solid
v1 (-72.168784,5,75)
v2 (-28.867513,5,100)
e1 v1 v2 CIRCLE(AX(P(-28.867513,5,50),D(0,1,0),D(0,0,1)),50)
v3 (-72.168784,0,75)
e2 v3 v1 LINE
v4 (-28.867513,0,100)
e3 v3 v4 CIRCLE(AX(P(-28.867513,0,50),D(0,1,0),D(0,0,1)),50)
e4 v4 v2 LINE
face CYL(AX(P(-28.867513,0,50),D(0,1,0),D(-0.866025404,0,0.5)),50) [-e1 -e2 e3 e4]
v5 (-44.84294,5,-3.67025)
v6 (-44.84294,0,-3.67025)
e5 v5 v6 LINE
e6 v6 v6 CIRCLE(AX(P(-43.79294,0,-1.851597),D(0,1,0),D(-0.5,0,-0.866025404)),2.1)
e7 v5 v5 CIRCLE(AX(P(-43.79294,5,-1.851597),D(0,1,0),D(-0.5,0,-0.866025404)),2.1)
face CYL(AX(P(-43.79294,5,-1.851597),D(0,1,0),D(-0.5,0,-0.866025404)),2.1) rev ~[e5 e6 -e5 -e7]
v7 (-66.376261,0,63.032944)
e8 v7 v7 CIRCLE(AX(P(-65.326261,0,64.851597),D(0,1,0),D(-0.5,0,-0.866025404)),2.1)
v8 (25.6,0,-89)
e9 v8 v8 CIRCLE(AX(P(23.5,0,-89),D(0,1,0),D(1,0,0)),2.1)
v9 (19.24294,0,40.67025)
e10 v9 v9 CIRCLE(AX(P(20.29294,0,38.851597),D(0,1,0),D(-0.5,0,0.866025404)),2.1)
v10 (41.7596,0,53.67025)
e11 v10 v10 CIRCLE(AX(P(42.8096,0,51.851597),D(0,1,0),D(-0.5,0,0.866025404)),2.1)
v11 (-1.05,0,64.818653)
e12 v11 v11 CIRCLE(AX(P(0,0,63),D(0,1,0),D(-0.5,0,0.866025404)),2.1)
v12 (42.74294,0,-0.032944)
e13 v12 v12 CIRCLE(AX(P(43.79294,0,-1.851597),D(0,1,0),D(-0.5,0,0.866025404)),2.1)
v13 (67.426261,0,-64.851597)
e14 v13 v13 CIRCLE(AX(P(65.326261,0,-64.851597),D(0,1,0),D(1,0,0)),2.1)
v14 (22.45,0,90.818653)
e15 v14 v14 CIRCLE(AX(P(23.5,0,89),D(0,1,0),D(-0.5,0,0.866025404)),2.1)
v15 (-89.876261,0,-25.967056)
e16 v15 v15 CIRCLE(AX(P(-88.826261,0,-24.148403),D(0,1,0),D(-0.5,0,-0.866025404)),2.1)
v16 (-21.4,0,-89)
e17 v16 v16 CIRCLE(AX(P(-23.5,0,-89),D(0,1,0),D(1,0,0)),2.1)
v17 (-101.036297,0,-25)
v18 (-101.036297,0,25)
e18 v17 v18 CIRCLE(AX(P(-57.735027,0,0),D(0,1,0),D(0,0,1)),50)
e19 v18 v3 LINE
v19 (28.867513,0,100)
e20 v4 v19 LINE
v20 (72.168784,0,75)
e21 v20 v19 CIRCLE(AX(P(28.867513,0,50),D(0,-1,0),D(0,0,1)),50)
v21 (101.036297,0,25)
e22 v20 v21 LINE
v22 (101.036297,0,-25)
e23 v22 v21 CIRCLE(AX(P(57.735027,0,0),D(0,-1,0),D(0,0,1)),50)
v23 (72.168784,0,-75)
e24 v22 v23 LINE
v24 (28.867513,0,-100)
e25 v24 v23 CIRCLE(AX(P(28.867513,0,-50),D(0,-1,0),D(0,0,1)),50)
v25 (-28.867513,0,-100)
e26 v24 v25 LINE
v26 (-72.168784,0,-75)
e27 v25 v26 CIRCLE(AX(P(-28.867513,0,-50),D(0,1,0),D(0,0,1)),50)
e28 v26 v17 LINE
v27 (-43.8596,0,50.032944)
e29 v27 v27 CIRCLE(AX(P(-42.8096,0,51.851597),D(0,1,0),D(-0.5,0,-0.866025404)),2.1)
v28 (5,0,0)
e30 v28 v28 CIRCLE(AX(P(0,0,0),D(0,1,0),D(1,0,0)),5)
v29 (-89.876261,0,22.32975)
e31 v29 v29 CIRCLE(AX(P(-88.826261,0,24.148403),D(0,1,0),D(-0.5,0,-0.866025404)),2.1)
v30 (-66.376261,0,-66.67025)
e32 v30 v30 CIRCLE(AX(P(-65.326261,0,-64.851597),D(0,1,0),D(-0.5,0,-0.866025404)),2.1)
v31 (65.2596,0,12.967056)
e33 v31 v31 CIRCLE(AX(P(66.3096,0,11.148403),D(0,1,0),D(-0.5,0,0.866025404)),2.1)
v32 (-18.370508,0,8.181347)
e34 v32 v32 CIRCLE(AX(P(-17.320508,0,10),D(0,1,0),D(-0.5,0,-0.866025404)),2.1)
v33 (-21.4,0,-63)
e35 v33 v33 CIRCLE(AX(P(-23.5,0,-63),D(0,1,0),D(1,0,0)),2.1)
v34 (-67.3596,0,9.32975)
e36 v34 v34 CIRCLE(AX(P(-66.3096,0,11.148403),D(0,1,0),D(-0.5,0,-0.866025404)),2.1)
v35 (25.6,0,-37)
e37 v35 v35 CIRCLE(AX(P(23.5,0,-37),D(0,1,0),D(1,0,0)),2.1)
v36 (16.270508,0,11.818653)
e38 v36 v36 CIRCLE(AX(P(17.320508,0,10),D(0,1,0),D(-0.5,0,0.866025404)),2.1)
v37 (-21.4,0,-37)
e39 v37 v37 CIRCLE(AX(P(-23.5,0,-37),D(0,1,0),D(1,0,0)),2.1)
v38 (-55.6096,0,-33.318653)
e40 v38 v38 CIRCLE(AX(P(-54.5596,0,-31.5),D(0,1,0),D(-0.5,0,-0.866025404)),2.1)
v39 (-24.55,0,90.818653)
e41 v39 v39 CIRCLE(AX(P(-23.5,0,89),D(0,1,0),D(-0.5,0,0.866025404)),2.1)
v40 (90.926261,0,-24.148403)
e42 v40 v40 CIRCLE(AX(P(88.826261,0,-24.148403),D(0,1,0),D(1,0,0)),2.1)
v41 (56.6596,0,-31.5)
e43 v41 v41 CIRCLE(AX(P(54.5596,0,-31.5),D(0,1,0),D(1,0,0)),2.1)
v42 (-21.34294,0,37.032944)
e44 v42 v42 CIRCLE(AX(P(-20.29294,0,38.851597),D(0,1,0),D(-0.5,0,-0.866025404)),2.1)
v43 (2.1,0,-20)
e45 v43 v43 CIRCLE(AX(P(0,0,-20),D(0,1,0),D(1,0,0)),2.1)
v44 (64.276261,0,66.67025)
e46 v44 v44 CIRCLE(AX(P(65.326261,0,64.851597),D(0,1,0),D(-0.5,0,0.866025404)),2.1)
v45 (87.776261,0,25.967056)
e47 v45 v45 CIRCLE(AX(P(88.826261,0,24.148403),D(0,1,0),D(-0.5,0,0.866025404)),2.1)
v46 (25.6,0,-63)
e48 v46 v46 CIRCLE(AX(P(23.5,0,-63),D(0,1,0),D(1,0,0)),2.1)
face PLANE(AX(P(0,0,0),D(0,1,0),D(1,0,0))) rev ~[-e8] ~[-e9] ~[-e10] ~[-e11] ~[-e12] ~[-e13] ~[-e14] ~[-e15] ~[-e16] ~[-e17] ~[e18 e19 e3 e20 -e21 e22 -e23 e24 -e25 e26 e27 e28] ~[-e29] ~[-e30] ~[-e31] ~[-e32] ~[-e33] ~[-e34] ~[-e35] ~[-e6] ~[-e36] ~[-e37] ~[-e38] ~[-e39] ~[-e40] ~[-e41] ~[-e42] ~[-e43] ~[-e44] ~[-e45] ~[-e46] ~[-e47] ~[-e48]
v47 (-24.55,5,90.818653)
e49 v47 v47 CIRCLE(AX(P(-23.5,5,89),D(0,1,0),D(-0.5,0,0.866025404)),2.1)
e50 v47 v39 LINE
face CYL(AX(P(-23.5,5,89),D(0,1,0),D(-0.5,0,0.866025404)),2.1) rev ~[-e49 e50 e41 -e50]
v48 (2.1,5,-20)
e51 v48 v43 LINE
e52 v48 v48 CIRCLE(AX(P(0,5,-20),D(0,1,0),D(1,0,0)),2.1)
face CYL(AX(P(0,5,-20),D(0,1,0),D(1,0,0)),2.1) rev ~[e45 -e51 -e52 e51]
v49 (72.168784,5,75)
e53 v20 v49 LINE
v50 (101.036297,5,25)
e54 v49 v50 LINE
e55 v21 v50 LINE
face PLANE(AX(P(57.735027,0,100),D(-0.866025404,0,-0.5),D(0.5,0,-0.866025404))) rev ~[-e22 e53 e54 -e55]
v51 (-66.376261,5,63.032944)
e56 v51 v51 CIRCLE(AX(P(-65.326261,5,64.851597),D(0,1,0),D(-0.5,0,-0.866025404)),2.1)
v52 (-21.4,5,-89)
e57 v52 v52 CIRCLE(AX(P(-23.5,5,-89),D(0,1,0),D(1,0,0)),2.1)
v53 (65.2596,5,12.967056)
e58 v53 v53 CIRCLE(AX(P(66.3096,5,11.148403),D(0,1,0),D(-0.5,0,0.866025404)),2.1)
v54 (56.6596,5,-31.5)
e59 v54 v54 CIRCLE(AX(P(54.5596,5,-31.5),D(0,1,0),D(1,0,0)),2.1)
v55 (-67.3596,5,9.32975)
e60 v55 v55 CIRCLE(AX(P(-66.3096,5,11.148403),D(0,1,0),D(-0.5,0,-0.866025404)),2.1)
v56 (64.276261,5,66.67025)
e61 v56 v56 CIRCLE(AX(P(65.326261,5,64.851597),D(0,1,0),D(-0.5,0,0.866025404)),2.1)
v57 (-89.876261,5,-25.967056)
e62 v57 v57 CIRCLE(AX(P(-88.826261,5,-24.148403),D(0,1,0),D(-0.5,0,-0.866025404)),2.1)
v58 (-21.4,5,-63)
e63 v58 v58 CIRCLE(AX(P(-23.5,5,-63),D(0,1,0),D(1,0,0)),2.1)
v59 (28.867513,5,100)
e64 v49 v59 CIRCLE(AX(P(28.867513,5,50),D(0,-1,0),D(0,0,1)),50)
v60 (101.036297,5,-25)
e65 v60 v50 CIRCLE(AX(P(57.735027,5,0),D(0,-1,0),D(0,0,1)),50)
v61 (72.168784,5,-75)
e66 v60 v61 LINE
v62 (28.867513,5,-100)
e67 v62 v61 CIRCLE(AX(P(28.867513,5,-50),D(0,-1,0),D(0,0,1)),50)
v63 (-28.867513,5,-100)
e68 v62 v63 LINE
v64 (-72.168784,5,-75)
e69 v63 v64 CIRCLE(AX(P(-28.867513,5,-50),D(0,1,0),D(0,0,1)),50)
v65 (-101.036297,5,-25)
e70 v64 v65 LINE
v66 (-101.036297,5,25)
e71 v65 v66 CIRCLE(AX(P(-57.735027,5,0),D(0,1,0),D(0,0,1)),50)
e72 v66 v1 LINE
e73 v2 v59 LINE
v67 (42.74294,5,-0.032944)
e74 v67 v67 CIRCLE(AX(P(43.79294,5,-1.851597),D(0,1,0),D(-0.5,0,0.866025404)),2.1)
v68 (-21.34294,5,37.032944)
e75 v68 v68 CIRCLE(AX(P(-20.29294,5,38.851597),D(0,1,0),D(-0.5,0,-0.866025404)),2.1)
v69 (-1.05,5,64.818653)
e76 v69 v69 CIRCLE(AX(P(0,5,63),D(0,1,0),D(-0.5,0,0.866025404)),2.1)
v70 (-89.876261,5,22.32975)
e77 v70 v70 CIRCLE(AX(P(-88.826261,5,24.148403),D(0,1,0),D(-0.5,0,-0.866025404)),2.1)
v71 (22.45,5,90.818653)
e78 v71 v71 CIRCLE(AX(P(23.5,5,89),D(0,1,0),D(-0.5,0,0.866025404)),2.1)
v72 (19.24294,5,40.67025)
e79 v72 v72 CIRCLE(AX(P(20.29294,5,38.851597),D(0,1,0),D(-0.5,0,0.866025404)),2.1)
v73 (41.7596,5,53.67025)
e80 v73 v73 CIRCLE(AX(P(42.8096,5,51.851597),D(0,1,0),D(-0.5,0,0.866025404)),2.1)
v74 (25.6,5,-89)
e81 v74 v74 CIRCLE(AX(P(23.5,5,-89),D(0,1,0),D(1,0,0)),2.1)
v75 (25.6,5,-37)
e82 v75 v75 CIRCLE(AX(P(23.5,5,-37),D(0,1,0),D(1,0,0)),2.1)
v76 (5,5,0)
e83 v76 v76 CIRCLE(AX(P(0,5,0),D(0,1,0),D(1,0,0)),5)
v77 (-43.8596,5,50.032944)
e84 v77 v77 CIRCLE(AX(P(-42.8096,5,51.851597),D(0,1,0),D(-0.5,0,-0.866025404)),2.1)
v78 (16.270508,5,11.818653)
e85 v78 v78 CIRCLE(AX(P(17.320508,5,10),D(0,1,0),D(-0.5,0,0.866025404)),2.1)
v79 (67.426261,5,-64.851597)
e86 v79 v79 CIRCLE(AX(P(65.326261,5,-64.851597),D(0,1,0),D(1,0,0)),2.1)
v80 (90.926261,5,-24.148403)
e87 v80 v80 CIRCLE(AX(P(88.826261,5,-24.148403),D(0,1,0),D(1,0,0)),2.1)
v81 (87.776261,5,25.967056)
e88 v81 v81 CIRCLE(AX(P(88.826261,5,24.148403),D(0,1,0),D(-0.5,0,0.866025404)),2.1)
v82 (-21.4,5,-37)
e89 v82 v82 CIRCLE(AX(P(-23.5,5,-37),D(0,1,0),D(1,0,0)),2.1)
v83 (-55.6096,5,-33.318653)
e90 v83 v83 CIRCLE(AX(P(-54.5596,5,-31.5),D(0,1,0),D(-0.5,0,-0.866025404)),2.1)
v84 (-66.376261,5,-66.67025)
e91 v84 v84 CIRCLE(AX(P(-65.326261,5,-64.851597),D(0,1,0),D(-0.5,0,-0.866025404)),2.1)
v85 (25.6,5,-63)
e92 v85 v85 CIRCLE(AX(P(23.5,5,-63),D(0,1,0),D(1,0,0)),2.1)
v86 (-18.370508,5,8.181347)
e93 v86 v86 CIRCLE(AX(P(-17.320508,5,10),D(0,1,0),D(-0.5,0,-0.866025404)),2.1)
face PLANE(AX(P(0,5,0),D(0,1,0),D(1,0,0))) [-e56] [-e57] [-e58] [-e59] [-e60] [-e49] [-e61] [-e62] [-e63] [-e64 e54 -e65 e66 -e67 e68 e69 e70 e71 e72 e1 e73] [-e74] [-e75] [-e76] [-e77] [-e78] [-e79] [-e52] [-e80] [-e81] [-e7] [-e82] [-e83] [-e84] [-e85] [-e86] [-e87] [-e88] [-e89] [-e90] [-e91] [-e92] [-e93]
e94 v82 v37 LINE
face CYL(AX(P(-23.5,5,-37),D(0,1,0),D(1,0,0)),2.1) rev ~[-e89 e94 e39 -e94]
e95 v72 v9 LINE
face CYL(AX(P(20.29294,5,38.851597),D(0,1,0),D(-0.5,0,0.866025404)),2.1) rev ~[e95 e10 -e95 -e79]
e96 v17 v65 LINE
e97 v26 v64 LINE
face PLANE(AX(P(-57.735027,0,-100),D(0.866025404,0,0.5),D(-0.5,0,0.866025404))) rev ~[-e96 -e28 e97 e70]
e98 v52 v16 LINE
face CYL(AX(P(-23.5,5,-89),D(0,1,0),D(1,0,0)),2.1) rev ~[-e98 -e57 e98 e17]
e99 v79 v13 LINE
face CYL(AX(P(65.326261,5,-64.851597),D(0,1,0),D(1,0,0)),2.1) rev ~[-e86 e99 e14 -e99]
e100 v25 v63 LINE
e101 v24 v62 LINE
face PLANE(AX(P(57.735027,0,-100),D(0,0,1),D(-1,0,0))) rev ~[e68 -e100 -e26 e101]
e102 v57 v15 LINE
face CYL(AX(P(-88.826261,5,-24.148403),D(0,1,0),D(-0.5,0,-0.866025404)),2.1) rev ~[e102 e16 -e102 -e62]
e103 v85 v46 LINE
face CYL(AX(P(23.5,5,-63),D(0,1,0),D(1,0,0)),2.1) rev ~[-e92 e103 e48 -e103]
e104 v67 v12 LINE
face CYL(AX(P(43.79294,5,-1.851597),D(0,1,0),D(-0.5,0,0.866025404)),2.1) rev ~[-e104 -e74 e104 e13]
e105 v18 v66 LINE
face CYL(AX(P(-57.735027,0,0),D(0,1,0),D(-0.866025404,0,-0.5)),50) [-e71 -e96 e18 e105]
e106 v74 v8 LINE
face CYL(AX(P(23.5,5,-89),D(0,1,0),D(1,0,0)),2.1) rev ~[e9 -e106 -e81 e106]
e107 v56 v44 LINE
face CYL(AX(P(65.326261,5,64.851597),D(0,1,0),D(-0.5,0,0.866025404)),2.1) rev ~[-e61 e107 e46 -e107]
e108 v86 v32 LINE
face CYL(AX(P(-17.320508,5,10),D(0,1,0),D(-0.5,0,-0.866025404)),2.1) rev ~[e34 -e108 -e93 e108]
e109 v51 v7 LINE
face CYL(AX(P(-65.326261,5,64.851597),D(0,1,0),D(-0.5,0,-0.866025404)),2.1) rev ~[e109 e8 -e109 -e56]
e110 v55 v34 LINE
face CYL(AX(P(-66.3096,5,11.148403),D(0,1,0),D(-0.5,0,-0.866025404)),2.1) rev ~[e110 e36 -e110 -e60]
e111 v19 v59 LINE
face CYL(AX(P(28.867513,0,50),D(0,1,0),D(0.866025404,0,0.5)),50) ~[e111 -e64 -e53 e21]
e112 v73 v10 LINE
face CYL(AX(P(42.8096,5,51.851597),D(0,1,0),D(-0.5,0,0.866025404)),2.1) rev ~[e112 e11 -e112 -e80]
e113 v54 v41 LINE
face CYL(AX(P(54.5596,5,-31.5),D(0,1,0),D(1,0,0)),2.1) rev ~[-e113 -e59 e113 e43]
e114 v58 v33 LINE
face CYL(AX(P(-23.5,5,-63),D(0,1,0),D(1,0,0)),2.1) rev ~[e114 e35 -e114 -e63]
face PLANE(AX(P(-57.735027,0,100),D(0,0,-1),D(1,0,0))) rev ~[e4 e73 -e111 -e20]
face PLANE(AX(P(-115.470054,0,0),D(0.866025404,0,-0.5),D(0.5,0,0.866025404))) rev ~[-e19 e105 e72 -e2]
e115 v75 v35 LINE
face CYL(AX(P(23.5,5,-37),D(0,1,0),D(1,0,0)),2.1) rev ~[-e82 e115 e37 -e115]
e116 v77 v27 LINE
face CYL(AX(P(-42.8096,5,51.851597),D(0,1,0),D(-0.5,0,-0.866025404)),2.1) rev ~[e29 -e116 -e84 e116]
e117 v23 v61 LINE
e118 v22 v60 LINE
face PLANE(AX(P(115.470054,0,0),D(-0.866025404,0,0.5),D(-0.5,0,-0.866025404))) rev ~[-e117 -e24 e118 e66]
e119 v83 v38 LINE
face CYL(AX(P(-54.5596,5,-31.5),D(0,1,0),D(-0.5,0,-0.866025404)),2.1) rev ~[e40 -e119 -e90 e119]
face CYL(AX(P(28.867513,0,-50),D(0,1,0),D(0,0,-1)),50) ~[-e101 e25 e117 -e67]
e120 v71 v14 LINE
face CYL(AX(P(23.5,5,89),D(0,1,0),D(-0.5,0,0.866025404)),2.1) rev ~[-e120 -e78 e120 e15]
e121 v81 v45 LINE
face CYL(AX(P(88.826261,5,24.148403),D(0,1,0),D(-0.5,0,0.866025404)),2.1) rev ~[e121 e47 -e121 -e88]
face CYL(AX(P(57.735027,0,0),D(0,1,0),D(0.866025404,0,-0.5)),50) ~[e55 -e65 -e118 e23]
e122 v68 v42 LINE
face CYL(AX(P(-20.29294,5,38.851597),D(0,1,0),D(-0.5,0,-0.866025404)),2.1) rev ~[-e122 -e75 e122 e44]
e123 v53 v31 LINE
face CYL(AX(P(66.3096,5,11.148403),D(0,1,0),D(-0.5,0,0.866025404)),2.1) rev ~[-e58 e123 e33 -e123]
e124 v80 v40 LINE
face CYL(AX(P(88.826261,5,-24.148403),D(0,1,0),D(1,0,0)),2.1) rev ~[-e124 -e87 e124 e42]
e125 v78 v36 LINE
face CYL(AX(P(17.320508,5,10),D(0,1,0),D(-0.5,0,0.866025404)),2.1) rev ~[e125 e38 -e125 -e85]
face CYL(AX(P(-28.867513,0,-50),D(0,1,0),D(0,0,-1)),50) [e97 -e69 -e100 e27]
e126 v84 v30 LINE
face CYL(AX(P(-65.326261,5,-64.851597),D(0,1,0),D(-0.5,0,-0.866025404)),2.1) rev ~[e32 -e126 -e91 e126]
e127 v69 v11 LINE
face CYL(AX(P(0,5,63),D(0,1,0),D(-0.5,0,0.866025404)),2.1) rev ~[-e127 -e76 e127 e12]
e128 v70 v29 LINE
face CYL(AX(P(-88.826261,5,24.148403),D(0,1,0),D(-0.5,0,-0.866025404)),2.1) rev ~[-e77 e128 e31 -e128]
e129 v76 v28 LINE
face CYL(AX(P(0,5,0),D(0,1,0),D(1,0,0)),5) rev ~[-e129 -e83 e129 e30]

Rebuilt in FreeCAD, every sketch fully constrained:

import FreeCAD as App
import Part
import Sketcher
Q = App.Units.Quantity


def edges_at(feature, points):
    """Names of the edges that pass closest to the given points."""
    edges = feature.Shape.Edges
    near = lambda p: min(range(len(edges)), key=lambda i: edges[i].distToShape(Part.Vertex(*p))[0])
    return sorted({f"Edge{near(p) + 1}" for p in points})

doc = App.newDocument("Part")
body = doc.addObject("PartDesign::Body", "Body")

sketch1 = body.newObject("Sketcher::SketchObject", "Sketch")
sketch1.AttachmentSupport = (doc.getObject("XZ_Plane"), [""])
sketch1.MapMode = "FlatFace"
sketch1.addGeometry([
    Part.LineSegment(App.Vector(58, -100, 0), App.Vector(-58, -100, 0)),
    Part.LineSegment(App.Vector(-58, -100, 0), App.Vector(-115, 0, 0)),
    Part.LineSegment(App.Vector(-115, 0, 0), App.Vector(-58, 100, 0)),
    Part.LineSegment(App.Vector(-58, 100, 0), App.Vector(58, 100, 0)),
    Part.LineSegment(App.Vector(58, 100, 0), App.Vector(115, 0, 0)),
    Part.LineSegment(App.Vector(115, 0, 0), App.Vector(58, -100, 0)),
], False)
sketch1.addConstraint([
    Sketcher.Constraint("Coincident", 0, 2, 1, 1),
    Sketcher.Constraint("Coincident", 1, 2, 2, 1),
    Sketcher.Constraint("Coincident", 2, 2, 3, 1),
    Sketcher.Constraint("Coincident", 3, 2, 4, 1),
    Sketcher.Constraint("Coincident", 4, 2, 5, 1),
    Sketcher.Constraint("Coincident", 5, 2, 0, 1),
    Sketcher.Constraint("Horizontal", 0),
    Sketcher.Constraint("Horizontal", 3),
    Sketcher.Constraint("Symmetric", 0, 2, 3, 2, -1, 1),
    Sketcher.Constraint("Symmetric", 1, 2, 4, 2, -1, 1),
    Sketcher.Constraint("PointOnObject", 1, 2, -1),
    Sketcher.Constraint("Parallel", 2, 5),
    Sketcher.Constraint("Vertical", 0, 2, 2, 2),
    Sketcher.Constraint("Angle", 1, Q("120 deg")),
    Sketcher.Constraint("DistanceY", 0, 2, -1, 1, Q("100 mm")),
    Sketcher.Constraint("DistanceX", 0, 2, 0, 1, Q("115.470054 mm")),
])
pad1 = body.newObject("PartDesign::Pad", "Pad")
pad1.Profile = sketch1
pad1.Length = 5
pad1.Reversed = True

sketch2 = body.newObject("Sketcher::SketchObject", "Sketch001")
sketch2.AttachmentSupport = (doc.getObject("XZ_Plane"), [""])
sketch2.MapMode = "FlatFace"
sketch2.AttachmentOffset = App.Placement(App.Vector(0, 0, -5), App.Rotation())
sketch2.addGeometry([
    Part.Circle(App.Vector(-23.5, -37, 0), App.Vector(0, 0, 1), 2.1),
    Part.Circle(App.Vector(23.5, -37, 0), App.Vector(0, 0, 1), 2.1),
    Part.Circle(App.Vector(-23.5, -63, 0), App.Vector(0, 0, 1), 2.1),
    Part.Circle(App.Vector(23.5, -63, 0), App.Vector(0, 0, 1), 2.1),
    Part.Circle(App.Vector(-23.5, -89, 0), App.Vector(0, 0, 1), 2.1),
    Part.Circle(App.Vector(23.5, -89, 0), App.Vector(0, 0, 1), 2.1),
], False)
sketch2.addConstraint([
    Sketcher.Constraint("Equal", 0, 1),
    Sketcher.Constraint("Equal", 1, 2),
    Sketcher.Constraint("Equal", 2, 3),
    Sketcher.Constraint("Equal", 3, 4),
    Sketcher.Constraint("Equal", 4, 5),
    Sketcher.Constraint("Symmetric", 0, 3, 1, 3, -2),
    Sketcher.Constraint("Symmetric", 2, 3, 3, 3, -2),
    Sketcher.Constraint("Symmetric", 4, 3, 5, 3, -2),
    Sketcher.Constraint("Vertical", 0, 3, 2, 3),
    Sketcher.Constraint("Vertical", 2, 3, 4, 3),
    Sketcher.Constraint("Diameter", 0, Q("4.2 mm")),
    Sketcher.Constraint("DistanceY", 0, 3, -1, 1, Q("37 mm")),
    Sketcher.Constraint("DistanceY", 2, 3, -1, 1, Q("63 mm")),
    Sketcher.Constraint("DistanceY", 4, 3, -1, 1, Q("89 mm")),
    Sketcher.Constraint("DistanceX", 0, 3, 1, 3, Q("47 mm")),
])
pocket1 = body.newObject("PartDesign::Pocket", "Pocket")
pocket1.Profile = sketch2
pocket1.Type = "ThroughAll"
pocket1.Reversed = True
doc.recompute()

polarpattern = body.newObject("PartDesign::PolarPattern", "PolarPattern")
polarpattern.Originals = [pocket1]
polarpattern.Axis = (doc.getObject("Y_Axis"), [""])
polarpattern.Angle = 360
polarpattern.Occurrences = 3
body.Tip = polarpattern

sketch3 = body.newObject("Sketcher::SketchObject", "Sketch002")
sketch3.AttachmentSupport = (doc.getObject("XZ_Plane"), [""])
sketch3.MapMode = "FlatFace"
sketch3.AttachmentOffset = App.Placement(App.Vector(0, 0, -5), App.Rotation())
sketch3.addGeometry([
    Part.Circle(App.Vector(65.3, -64.9, 0), App.Vector(0, 0, 1), 2.1),
    Part.Circle(App.Vector(88.8, -24.1, 0), App.Vector(0, 0, 1), 2.1),
    Part.Circle(App.Vector(54.6, -31.5, 0), App.Vector(0, 0, 1), 2.1),
], False)
sketch3.addConstraint([
    Sketcher.Constraint("Equal", 0, 1),
    Sketcher.Constraint("Equal", 1, 2),
    Sketcher.Constraint("Diameter", 0, Q("4.2 mm")),
    Sketcher.Constraint("DistanceY", 2, 3, -1, 1, Q("31.5 mm")),
    Sketcher.Constraint("DistanceX", 0, 3, 1, 3, Q("23.5 mm")),
    Sketcher.Constraint("DistanceX", -1, 1, 2, 3, Q("54.5596 mm")),
    Sketcher.Constraint("DistanceX", -1, 1, 0, 3, Q("65.326261 mm")),
    Sketcher.Constraint("DistanceY", 0, 3, -1, 1, Q("64.851597 mm")),
    Sketcher.Constraint("DistanceY", 1, 3, -1, 1, Q("24.148403 mm")),
])
pocket2 = body.newObject("PartDesign::Pocket", "Pocket001")
pocket2.Profile = sketch3
pocket2.Type = "ThroughAll"
pocket2.Reversed = True
doc.recompute()

polarpattern2 = body.newObject("PartDesign::PolarPattern", "PolarPattern001")
polarpattern2.Originals = [pocket2]
polarpattern2.Axis = (doc.getObject("Y_Axis"), [""])
polarpattern2.Angle = 360
polarpattern2.Occurrences = 3
body.Tip = polarpattern2

sketch4 = body.newObject("Sketcher::SketchObject", "Sketch003")
sketch4.AttachmentSupport = (doc.getObject("XZ_Plane"), [""])
sketch4.MapMode = "FlatFace"
sketch4.AttachmentOffset = App.Placement(App.Vector(0, 0, -5), App.Rotation())
sketch4.addGeometry(Part.Circle(App.Vector(0, -20, 0), App.Vector(0, 0, 1), 2.1), False)
sketch4.addConstraint([
    Sketcher.Constraint("PointOnObject", 0, 3, -2),
    Sketcher.Constraint("Diameter", 0, Q("4.2 mm")),
    Sketcher.Constraint("DistanceY", 0, 3, -1, 1, Q("20 mm")),
])
pocket3 = body.newObject("PartDesign::Pocket", "Pocket002")
pocket3.Profile = sketch4
pocket3.Type = "ThroughAll"
pocket3.Reversed = True
doc.recompute()

polarpattern3 = body.newObject("PartDesign::PolarPattern", "PolarPattern002")
polarpattern3.Originals = [pocket3]
polarpattern3.Axis = (doc.getObject("Y_Axis"), [""])
polarpattern3.Angle = 360
polarpattern3.Occurrences = 3
body.Tip = polarpattern3
doc.recompute()

fillet = body.newObject("PartDesign::Fillet", "Fillet")
fillet.Base = (polarpattern3, edges_at(polarpattern3, [
    (115.47, 2.5, 0),
    (57.735, 2.5, 100),
    (-57.735, 2.5, 100),
    (-115.47, 2.5, 0),
    (-57.735, 2.5, -100),
    (57.735, 2.5, -100),
]))
fillet.Radius = 50

sketch5 = body.newObject("Sketcher::SketchObject", "Sketch004")
sketch5.AttachmentSupport = (doc.getObject("XZ_Plane"), [""])
sketch5.MapMode = "FlatFace"
sketch5.AttachmentOffset = App.Placement(App.Vector(0, 0, -5), App.Rotation())
sketch5.addGeometry(Part.Circle(App.Vector(0, 0, 0), App.Vector(0, 0, 1), 5), False)
sketch5.addConstraint([
    Sketcher.Constraint("Coincident", 0, 3, -1, 1),
    Sketcher.Constraint("Diameter", 0, Q("10 mm")),
])
pocket4 = body.newObject("PartDesign::Pocket", "Pocket003")
pocket4.Profile = sketch5
pocket4.Type = "ThroughAll"
pocket4.Midplane = True

doc.recompute()
